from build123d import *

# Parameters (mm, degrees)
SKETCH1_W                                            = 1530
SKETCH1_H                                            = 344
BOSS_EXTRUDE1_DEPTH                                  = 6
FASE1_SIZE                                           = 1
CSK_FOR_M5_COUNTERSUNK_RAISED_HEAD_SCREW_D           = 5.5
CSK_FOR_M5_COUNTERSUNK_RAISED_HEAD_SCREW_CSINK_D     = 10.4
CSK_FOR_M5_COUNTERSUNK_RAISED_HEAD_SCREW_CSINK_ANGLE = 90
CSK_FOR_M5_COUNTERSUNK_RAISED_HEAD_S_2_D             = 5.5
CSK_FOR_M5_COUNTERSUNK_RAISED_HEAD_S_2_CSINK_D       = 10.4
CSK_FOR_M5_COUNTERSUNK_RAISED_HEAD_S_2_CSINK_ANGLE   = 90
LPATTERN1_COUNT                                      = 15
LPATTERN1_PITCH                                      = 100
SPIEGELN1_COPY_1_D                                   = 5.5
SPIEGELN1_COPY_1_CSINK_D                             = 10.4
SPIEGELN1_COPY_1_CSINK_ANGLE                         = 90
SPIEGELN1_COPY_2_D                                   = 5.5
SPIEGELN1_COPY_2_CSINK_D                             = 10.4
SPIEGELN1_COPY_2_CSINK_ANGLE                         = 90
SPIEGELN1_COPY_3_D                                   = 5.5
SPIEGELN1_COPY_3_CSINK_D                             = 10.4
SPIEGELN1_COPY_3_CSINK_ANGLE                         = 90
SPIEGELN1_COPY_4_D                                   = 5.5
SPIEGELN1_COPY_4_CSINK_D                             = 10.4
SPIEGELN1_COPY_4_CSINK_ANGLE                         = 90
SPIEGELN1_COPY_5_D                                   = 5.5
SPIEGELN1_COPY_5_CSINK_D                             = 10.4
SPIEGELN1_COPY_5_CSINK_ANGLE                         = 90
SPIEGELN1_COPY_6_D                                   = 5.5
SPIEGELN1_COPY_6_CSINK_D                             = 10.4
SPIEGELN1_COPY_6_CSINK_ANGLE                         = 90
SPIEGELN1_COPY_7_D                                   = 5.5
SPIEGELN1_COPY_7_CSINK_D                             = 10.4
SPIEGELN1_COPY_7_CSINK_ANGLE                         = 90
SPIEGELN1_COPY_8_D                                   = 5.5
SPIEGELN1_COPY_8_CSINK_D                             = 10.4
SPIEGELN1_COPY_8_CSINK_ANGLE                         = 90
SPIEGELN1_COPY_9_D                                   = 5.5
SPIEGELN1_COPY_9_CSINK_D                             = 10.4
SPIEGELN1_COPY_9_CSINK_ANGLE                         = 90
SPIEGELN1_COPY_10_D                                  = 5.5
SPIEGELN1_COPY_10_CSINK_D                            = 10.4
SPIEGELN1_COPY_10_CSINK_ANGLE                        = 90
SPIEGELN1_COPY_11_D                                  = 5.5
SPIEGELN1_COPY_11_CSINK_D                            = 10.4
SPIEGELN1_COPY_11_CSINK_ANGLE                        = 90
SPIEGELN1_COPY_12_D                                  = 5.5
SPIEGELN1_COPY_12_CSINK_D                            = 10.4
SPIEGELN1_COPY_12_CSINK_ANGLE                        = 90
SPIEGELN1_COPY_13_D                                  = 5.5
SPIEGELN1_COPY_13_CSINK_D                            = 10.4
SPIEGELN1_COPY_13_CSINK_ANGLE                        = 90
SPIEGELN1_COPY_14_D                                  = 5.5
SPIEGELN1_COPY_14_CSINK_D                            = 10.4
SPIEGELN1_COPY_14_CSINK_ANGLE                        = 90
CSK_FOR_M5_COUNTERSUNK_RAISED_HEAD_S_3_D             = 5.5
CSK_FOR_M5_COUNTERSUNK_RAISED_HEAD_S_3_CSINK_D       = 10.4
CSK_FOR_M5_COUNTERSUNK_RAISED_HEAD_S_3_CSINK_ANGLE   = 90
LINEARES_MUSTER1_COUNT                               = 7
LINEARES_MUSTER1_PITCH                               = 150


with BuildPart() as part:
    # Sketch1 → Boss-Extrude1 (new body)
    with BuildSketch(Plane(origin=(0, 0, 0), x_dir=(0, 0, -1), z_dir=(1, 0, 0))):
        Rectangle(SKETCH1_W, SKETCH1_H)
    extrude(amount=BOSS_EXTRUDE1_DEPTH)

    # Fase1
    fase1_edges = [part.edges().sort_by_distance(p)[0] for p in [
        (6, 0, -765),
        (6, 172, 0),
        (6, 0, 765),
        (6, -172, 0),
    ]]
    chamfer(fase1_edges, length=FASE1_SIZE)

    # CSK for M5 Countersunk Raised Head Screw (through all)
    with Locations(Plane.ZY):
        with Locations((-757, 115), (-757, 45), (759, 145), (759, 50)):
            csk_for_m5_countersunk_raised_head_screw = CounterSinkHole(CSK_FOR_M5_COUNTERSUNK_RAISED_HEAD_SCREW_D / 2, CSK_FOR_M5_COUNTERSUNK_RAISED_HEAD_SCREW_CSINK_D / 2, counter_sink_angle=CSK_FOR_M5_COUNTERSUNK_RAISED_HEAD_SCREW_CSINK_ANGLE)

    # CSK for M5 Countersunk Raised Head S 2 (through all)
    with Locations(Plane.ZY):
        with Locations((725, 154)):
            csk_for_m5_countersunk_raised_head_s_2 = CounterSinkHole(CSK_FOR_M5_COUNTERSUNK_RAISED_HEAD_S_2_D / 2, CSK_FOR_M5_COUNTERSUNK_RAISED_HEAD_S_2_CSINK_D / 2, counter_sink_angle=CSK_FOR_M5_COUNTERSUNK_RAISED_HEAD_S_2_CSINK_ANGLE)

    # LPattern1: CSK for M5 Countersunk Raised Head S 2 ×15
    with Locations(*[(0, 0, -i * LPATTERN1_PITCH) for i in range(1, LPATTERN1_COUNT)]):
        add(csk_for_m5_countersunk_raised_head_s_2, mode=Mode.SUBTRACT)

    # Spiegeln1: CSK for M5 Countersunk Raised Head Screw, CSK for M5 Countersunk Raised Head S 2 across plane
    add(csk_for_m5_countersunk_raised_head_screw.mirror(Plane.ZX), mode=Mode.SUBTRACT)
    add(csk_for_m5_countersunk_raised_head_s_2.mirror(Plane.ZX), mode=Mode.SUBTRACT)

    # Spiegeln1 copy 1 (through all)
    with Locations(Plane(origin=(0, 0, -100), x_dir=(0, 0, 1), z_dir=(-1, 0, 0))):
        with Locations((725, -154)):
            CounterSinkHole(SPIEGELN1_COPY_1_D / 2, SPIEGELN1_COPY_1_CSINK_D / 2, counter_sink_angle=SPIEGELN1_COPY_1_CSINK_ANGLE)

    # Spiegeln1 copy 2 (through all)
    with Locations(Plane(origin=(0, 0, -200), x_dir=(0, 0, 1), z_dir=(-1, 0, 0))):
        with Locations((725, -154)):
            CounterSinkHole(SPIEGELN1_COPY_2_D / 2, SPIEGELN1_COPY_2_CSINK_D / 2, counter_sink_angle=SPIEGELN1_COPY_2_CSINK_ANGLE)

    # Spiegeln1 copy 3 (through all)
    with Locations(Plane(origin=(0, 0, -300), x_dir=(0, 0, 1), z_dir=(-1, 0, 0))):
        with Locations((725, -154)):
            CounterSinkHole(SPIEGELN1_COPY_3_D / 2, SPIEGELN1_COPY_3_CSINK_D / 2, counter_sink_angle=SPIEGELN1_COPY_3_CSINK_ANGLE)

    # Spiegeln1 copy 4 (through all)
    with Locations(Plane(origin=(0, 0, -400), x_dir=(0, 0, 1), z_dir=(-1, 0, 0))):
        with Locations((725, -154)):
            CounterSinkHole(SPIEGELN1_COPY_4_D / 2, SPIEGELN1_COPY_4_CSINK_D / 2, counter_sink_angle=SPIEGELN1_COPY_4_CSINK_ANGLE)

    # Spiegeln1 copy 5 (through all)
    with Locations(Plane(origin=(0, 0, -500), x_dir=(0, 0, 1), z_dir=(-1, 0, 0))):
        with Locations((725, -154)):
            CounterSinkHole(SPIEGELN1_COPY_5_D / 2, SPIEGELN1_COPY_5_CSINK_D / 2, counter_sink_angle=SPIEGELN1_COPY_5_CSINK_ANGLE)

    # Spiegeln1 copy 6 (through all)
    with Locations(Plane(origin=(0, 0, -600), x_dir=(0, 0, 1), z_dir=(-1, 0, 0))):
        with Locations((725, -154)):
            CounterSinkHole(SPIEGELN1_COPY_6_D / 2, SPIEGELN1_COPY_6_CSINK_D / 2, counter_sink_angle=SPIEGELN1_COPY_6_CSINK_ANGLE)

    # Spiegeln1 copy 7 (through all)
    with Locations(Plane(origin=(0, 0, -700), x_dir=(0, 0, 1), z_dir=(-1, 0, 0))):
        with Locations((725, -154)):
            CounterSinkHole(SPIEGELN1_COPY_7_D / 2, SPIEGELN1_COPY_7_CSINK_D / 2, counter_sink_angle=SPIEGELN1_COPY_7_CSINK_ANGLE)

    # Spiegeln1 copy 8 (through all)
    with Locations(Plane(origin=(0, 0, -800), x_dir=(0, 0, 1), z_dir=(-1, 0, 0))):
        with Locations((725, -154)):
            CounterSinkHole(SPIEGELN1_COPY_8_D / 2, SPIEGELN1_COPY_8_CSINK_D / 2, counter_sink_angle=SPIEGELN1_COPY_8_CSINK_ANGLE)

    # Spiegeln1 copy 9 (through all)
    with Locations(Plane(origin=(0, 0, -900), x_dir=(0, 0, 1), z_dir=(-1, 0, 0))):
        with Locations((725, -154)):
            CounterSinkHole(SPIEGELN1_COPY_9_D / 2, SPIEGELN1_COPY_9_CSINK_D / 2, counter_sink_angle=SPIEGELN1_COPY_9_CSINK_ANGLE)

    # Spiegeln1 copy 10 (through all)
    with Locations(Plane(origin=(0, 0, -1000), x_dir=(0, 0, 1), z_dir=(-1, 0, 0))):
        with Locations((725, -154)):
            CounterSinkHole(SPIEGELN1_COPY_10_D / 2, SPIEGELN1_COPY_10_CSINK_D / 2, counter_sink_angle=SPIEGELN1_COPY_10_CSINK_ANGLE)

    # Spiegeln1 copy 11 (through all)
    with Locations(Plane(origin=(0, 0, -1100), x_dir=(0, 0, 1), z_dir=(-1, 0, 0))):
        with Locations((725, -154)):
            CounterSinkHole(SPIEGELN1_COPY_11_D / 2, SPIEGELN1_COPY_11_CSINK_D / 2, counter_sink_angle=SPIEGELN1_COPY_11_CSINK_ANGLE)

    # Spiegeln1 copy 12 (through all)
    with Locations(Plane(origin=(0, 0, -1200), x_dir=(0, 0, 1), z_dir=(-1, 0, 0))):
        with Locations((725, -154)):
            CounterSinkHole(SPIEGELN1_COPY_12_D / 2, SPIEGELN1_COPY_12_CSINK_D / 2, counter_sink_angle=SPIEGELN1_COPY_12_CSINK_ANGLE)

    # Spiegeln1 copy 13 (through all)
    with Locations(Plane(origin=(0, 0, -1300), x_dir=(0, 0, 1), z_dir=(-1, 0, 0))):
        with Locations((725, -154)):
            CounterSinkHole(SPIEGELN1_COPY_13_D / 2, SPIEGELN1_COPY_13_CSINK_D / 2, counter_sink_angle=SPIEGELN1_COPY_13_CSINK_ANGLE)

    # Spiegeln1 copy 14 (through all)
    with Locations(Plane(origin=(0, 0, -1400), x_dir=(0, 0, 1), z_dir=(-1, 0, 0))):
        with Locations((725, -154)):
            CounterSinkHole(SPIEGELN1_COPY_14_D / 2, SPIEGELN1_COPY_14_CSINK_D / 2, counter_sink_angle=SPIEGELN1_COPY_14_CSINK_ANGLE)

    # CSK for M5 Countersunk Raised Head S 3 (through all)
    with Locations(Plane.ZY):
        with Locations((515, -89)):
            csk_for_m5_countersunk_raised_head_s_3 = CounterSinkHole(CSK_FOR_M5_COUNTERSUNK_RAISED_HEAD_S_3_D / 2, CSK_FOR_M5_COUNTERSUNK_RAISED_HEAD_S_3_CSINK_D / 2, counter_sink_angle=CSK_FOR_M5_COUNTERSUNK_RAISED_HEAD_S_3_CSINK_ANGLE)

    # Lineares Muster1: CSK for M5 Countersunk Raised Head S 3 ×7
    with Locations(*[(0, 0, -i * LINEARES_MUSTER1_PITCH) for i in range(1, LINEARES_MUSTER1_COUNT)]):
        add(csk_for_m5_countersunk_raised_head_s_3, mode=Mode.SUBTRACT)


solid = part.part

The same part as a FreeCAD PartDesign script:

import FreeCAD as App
import Part
import Sketcher
Q = App.Units.Quantity


def edges_at(feature, points):
    """Names of the edges that pass closest to the given points."""
    edges = feature.Shape.Edges
    near = lambda p: min(range(len(edges)), key=lambda i: edges[i].distToShape(Part.Vertex(*p))[0])
    return sorted({f"Edge{near(p) + 1}" for p in points})


def add_polygon(sketch, points):
    """Adds a closed chain of lines whose ends are joined by coincident constraints."""
    first, n = sketch.GeometryCount, len(points)
    for a, b in zip(points, points[1:] + points[:1]):
        sketch.addGeometry(Part.LineSegment(App.Vector(*a, 0), App.Vector(*b, 0)), False)
    for i in range(n):
        sketch.addConstraint(Sketcher.Constraint("Coincident", first + i, 2, first + (i + 1) % n, 1))

doc = App.newDocument("Part")
body = doc.addObject("PartDesign::Body", "Body")

# Sketch on YZ plane
sketch1 = body.newObject("Sketcher::SketchObject", "Sketch")
sketch1.AttachmentSupport = (doc.getObject("YZ_Plane"), [""])
sketch1.MapMode = "FlatFace"
add_polygon(sketch1, [(172, 765), (-172, 765), (-172, -765), (172, -765)])  # lines 0-3
sketch1.addConstraint([
    Sketcher.Constraint("Horizontal", 0),
    Sketcher.Constraint("Vertical", 1),
    Sketcher.Constraint("Horizontal", 2),
    Sketcher.Constraint("Vertical", 3),
    Sketcher.Constraint("Symmetric", 0, 2, 2, 2, -1, 1),
    Sketcher.Constraint("DistanceX", 0, 2, 0, 1, Q("344 mm")),
    Sketcher.Constraint("DistanceY", 1, 2, 1, 1, Q("1530 mm")),
])
pad1 = body.newObject("PartDesign::Pad", "Pad")
pad1.Profile = sketch1
pad1.Length = 6
doc.recompute()

chamfer = body.newObject("PartDesign::Chamfer", "Chamfer")
chamfer.Base = (pad1, edges_at(pad1, [
    (6, 0, -765),
    (6, 172, 0),
    (6, 0, 765),
    (6, -172, 0),
]))
chamfer.Size = 1

# Sketch on YZ plane
sketch2 = body.newObject("Sketcher::SketchObject", "Sketch001")
sketch2.AttachmentSupport = (doc.getObject("YZ_Plane"), [""])
sketch2.MapMode = "FlatFace"
sketch2.addGeometry([
    Part.Circle(App.Vector(115, -757, 0), App.Vector(0, 0, 1), 2.8),
    Part.Circle(App.Vector(45, -757, 0), App.Vector(0, 0, 1), 2.8),
    Part.Circle(App.Vector(145, 759, 0), App.Vector(0, 0, 1), 2.8),
    Part.Circle(App.Vector(50, 759, 0), App.Vector(0, 0, 1), 2.8),
], False)
sketch2.addConstraint([
    Sketcher.Constraint("Equal", 0, 1),
    Sketcher.Constraint("Equal", 1, 2),
    Sketcher.Constraint("Equal", 2, 3),
    Sketcher.Constraint("Horizontal", 0, 3, 1, 3),
    Sketcher.Constraint("Horizontal", 2, 3, 3, 3),
    Sketcher.Constraint("Diameter", 0, Q("5.5 mm")),
    Sketcher.Constraint("DistanceX", -1, 1, 0, 3, Q("115 mm")),
    Sketcher.Constraint("DistanceY", 0, 3, -1, 1, Q("757 mm")),
    Sketcher.Constraint("DistanceX", -1, 1, 1, 3, Q("45 mm")),
    Sketcher.Constraint("DistanceX", -1, 1, 2, 3, Q("145 mm")),
    Sketcher.Constraint("DistanceY", -1, 1, 2, 3, Q("759 mm")),
    Sketcher.Constraint("DistanceX", -1, 1, 3, 3, Q("50 mm")),
])
doc.recompute()
hole = body.newObject("PartDesign::Hole", "Hole")
hole.Profile = sketch2
hole.ThreadType = "None"
hole.Diameter = 5.5
hole.DepthType = "ThroughAll"
hole.HoleCutType = "Countersink"
hole.HoleCutDiameter = 10.4
hole.HoleCutCountersinkAngle = 90
hole.Reversed = True

# Sketch on YZ plane
sketch3 = body.newObject("Sketcher::SketchObject", "Sketch002")
sketch3.AttachmentSupport = (doc.getObject("YZ_Plane"), [""])
sketch3.MapMode = "FlatFace"
sketch3.addGeometry(Part.Circle(App.Vector(154, 725, 0), App.Vector(0, 0, 1), 2.8), False)
sketch3.addConstraint([
    Sketcher.Constraint("Diameter", 0, Q("5.5 mm")),
    Sketcher.Constraint("DistanceX", -1, 1, 0, 3, Q("154 mm")),
    Sketcher.Constraint("DistanceY", -1, 1, 0, 3, Q("725 mm")),
])
doc.recompute()
hole2 = body.newObject("PartDesign::Hole", "Hole001")
hole2.Profile = sketch3
hole2.ThreadType = "None"
hole2.Diameter = 5.5
hole2.DepthType = "ThroughAll"
hole2.HoleCutType = "Countersink"
hole2.HoleCutDiameter = 10.4
hole2.HoleCutCountersinkAngle = 90
hole2.Reversed = True
doc.recompute()

linearpattern = body.newObject("PartDesign::LinearPattern", "LinearPattern")
linearpattern.Originals = [hole2]
linearpattern.Direction = (doc.getObject("Z_Axis"), [""])
linearpattern.Mode = "offset"
linearpattern.Offset = 100
linearpattern.Occurrences = 15
linearpattern.Reversed = True
body.Tip = linearpattern
doc.recompute()

mirrored = body.newObject("PartDesign::Mirrored", "Mirrored")
mirrored.Originals = [hole, hole2]
mirrored.MirrorPlane = (doc.getObject("XZ_Plane"), [""])
body.Tip = mirrored

# Sketch on YZ plane
sketch4 = body.newObject("Sketcher::SketchObject", "Sketch003")
sketch4.AttachmentSupport = (doc.getObject("YZ_Plane"), [""])
sketch4.MapMode = "FlatFace"
sketch4.addGeometry(Part.Circle(App.Vector(-154, 625, 0), App.Vector(0, 0, 1), 2.8), False)
sketch4.addConstraint([
    Sketcher.Constraint("Diameter", 0, Q("5.5 mm")),
    Sketcher.Constraint("DistanceX", 0, 3, -1, 1, Q("154 mm")),
    Sketcher.Constraint("DistanceY", -1, 1, 0, 3, Q("625 mm")),
])
doc.recompute()
hole3 = body.newObject("PartDesign::Hole", "Hole002")
hole3.Profile = sketch4
hole3.ThreadType = "None"
hole3.Diameter = 5.5
hole3.DepthType = "ThroughAll"
hole3.HoleCutType = "Countersink"
hole3.HoleCutDiameter = 10.4
hole3.HoleCutCountersinkAngle = 90
hole3.Reversed = True

# Sketch on YZ plane
sketch5 = body.newObject("Sketcher::SketchObject", "Sketch004")
sketch5.AttachmentSupport = (doc.getObject("YZ_Plane"), [""])
sketch5.MapMode = "FlatFace"
sketch5.addGeometry(Part.Circle(App.Vector(-154, 525, 0), App.Vector(0, 0, 1), 2.8), False)
sketch5.addConstraint([
    Sketcher.Constraint("Diameter", 0, Q("5.5 mm")),
    Sketcher.Constraint("DistanceX", 0, 3, -1, 1, Q("154 mm")),
    Sketcher.Constraint("DistanceY", -1, 1, 0, 3, Q("525 mm")),
])
doc.recompute()
hole4 = body.newObject("PartDesign::Hole", "Hole003")
hole4.Profile = sketch5
hole4.ThreadType = "None"
hole4.Diameter = 5.5
hole4.DepthType = "ThroughAll"
hole4.HoleCutType = "Countersink"
hole4.HoleCutDiameter = 10.4
hole4.HoleCutCountersinkAngle = 90
hole4.Reversed = True

# Sketch on YZ plane
sketch6 = body.newObject("Sketcher::SketchObject", "Sketch005")
sketch6.AttachmentSupport = (doc.getObject("YZ_Plane"), [""])
sketch6.MapMode = "FlatFace"
sketch6.addGeometry(Part.Circle(App.Vector(-154, 425, 0), App.Vector(0, 0, 1), 2.8), False)
sketch6.addConstraint([
    Sketcher.Constraint("Diameter", 0, Q("5.5 mm")),
    Sketcher.Constraint("DistanceX", 0, 3, -1, 1, Q("154 mm")),
    Sketcher.Constraint("DistanceY", -1, 1, 0, 3, Q("425 mm")),
])
doc.recompute()
hole5 = body.newObject("PartDesign::Hole", "Hole004")
hole5.Profile = sketch6
hole5.ThreadType = "None"
hole5.Diameter = 5.5
hole5.DepthType = "ThroughAll"
hole5.HoleCutType = "Countersink"
hole5.HoleCutDiameter = 10.4
hole5.HoleCutCountersinkAngle = 90
hole5.Reversed = True

# Sketch on YZ plane
sketch7 = body.newObject("Sketcher::SketchObject", "Sketch006")
sketch7.AttachmentSupport = (doc.getObject("YZ_Plane"), [""])
sketch7.MapMode = "FlatFace"
sketch7.addGeometry(Part.Circle(App.Vector(-154, 325, 0), App.Vector(0, 0, 1), 2.8), False)
sketch7.addConstraint([
    Sketcher.Constraint("Diameter", 0, Q("5.5 mm")),
    Sketcher.Constraint("DistanceX", 0, 3, -1, 1, Q("154 mm")),
    Sketcher.Constraint("DistanceY", -1, 1, 0, 3, Q("325 mm")),
])
doc.recompute()
hole6 = body.newObject("PartDesign::Hole", "Hole005")
hole6.Profile = sketch7
hole6.ThreadType = "None"
hole6.Diameter = 5.5
hole6.DepthType = "ThroughAll"
hole6.HoleCutType = "Countersink"
hole6.HoleCutDiameter = 10.4
hole6.HoleCutCountersinkAngle = 90
hole6.Reversed = True

# Sketch on YZ plane
sketch8 = body.newObject("Sketcher::SketchObject", "Sketch007")
sketch8.AttachmentSupport = (doc.getObject("YZ_Plane"), [""])
sketch8.MapMode = "FlatFace"
sketch8.addGeometry(Part.Circle(App.Vector(-154, 225, 0), App.Vector(0, 0, 1), 2.8), False)
sketch8.addConstraint([
    Sketcher.Constraint("Diameter", 0, Q("5.5 mm")),
    Sketcher.Constraint("DistanceX", 0, 3, -1, 1, Q("154 mm")),
    Sketcher.Constraint("DistanceY", -1, 1, 0, 3, Q("225 mm")),
])
doc.recompute()
hole7 = body.newObject("PartDesign::Hole", "Hole006")
hole7.Profile = sketch8
hole7.ThreadType = "None"
hole7.Diameter = 5.5
hole7.DepthType = "ThroughAll"
hole7.HoleCutType = "Countersink"
hole7.HoleCutDiameter = 10.4
hole7.HoleCutCountersinkAngle = 90
hole7.Reversed = True

# Sketch on YZ plane
sketch9 = body.newObject("Sketcher::SketchObject", "Sketch008")
sketch9.AttachmentSupport = (doc.getObject("YZ_Plane"), [""])
sketch9.MapMode = "FlatFace"
sketch9.addGeometry(Part.Circle(App.Vector(-154, 125, 0), App.Vector(0, 0, 1), 2.8), False)
sketch9.addConstraint([
    Sketcher.Constraint("Diameter", 0, Q("5.5 mm")),
    Sketcher.Constraint("DistanceX", 0, 3, -1, 1, Q("154 mm")),
    Sketcher.Constraint("DistanceY", -1, 1, 0, 3, Q("125 mm")),
])
doc.recompute()
hole8 = body.newObject("PartDesign::Hole", "Hole007")
hole8.Profile = sketch9
hole8.ThreadType = "None"
hole8.Diameter = 5.5
hole8.DepthType = "ThroughAll"
hole8.HoleCutType = "Countersink"
hole8.HoleCutDiameter = 10.4
hole8.HoleCutCountersinkAngle = 90
hole8.Reversed = True

# Sketch on YZ plane
sketch10 = body.newObject("Sketcher::SketchObject", "Sketch009")
sketch10.AttachmentSupport = (doc.getObject("YZ_Plane"), [""])
sketch10.MapMode = "FlatFace"
sketch10.addGeometry(Part.Circle(App.Vector(-154, 25, 0), App.Vector(0, 0, 1), 2.8), False)
sketch10.addConstraint([
    Sketcher.Constraint("Diameter", 0, Q("5.5 mm")),
    Sketcher.Constraint("DistanceX", 0, 3, -1, 1, Q("154 mm")),
    Sketcher.Constraint("DistanceY", -1, 1, 0, 3, Q("25 mm")),
])
doc.recompute()
hole9 = body.newObject("PartDesign::Hole", "Hole008")
hole9.Profile = sketch10
hole9.ThreadType = "None"
hole9.Diameter = 5.5
hole9.DepthType = "ThroughAll"
hole9.HoleCutType = "Countersink"
hole9.HoleCutDiameter = 10.4
hole9.HoleCutCountersinkAngle = 90
hole9.Reversed = True

# Sketch on YZ plane
sketch11 = body.newObject("Sketcher::SketchObject", "Sketch010")
sketch11.AttachmentSupport = (doc.getObject("YZ_Plane"), [""])
sketch11.MapMode = "FlatFace"
sketch11.addGeometry(Part.Circle(App.Vector(-154, -75, 0), App.Vector(0, 0, 1), 2.8), False)
sketch11.addConstraint([
    Sketcher.Constraint("Diameter", 0, Q("5.5 mm")),
    Sketcher.Constraint("DistanceX", 0, 3, -1, 1, Q("154 mm")),
    Sketcher.Constraint("DistanceY", 0, 3, -1, 1, Q("75 mm")),
])
doc.recompute()
hole10 = body.newObject("PartDesign::Hole", "Hole009")
hole10.Profile = sketch11
hole10.ThreadType = "None"
hole10.Diameter = 5.5
hole10.DepthType = "ThroughAll"
hole10.HoleCutType = "Countersink"
hole10.HoleCutDiameter = 10.4
hole10.HoleCutCountersinkAngle = 90
hole10.Reversed = True

# Sketch on YZ plane
sketch12 = body.newObject("Sketcher::SketchObject", "Sketch011")
sketch12.AttachmentSupport = (doc.getObject("YZ_Plane"), [""])
sketch12.MapMode = "FlatFace"
sketch12.addGeometry(Part.Circle(App.Vector(-154, -175, 0), App.Vector(0, 0, 1), 2.8), False)
sketch12.addConstraint([
    Sketcher.Constraint("Diameter", 0, Q("5.5 mm")),
    Sketcher.Constraint("DistanceX", 0, 3, -1, 1, Q("154 mm")),
    Sketcher.Constraint("DistanceY", 0, 3, -1, 1, Q("175 mm")),
])
doc.recompute()
hole11 = body.newObject("PartDesign::Hole", "Hole010")
hole11.Profile = sketch12
hole11.ThreadType = "None"
hole11.Diameter = 5.5
hole11.DepthType = "ThroughAll"
hole11.HoleCutType = "Countersink"
hole11.HoleCutDiameter = 10.4
hole11.HoleCutCountersinkAngle = 90
hole11.Reversed = True

# Sketch on YZ plane
sketch13 = body.newObject("Sketcher::SketchObject", "Sketch012")
sketch13.AttachmentSupport = (doc.getObject("YZ_Plane"), [""])
sketch13.MapMode = "FlatFace"
sketch13.addGeometry(Part.Circle(App.Vector(-154, -275, 0), App.Vector(0, 0, 1), 2.8), False)
sketch13.addConstraint([
    Sketcher.Constraint("Diameter", 0, Q("5.5 mm")),
    Sketcher.Constraint("DistanceX", 0, 3, -1, 1, Q("154 mm")),
    Sketcher.Constraint("DistanceY", 0, 3, -1, 1, Q("275 mm")),
])
doc.recompute()
hole12 = body.newObject("PartDesign::Hole", "Hole011")
hole12.Profile = sketch13
hole12.ThreadType = "None"
hole12.Diameter = 5.5
hole12.DepthType = "ThroughAll"
hole12.HoleCutType = "Countersink"
hole12.HoleCutDiameter = 10.4
hole12.HoleCutCountersinkAngle = 90
hole12.Reversed = True

# Sketch on YZ plane
sketch14 = body.newObject("Sketcher::SketchObject", "Sketch013")
sketch14.AttachmentSupport = (doc.getObject("YZ_Plane"), [""])
sketch14.MapMode = "FlatFace"
sketch14.addGeometry(Part.Circle(App.Vector(-154, -375, 0), App.Vector(0, 0, 1), 2.8), False)
sketch14.addConstraint([
    Sketcher.Constraint("Diameter", 0, Q("5.5 mm")),
    Sketcher.Constraint("DistanceX", 0, 3, -1, 1, Q("154 mm")),
    Sketcher.Constraint("DistanceY", 0, 3, -1, 1, Q("375 mm")),
])
doc.recompute()
hole13 = body.newObject("PartDesign::Hole", "Hole012")
hole13.Profile = sketch14
hole13.ThreadType = "None"
hole13.Diameter = 5.5
hole13.DepthType = "ThroughAll"
hole13.HoleCutType = "Countersink"
hole13.HoleCutDiameter = 10.4
hole13.HoleCutCountersinkAngle = 90
hole13.Reversed = True

# Sketch on YZ plane
sketch15 = body.newObject("Sketcher::SketchObject", "Sketch014")
sketch15.AttachmentSupport = (doc.getObject("YZ_Plane"), [""])
sketch15.MapMode = "FlatFace"
sketch15.addGeometry(Part.Circle(App.Vector(-154, -475, 0), App.Vector(0, 0, 1), 2.8), False)
sketch15.addConstraint([
    Sketcher.Constraint("Diameter", 0, Q("5.5 mm")),
    Sketcher.Constraint("DistanceX", 0, 3, -1, 1, Q("154 mm")),
    Sketcher.Constraint("DistanceY", 0, 3, -1, 1, Q("475 mm")),
])
doc.recompute()
hole14 = body.newObject("PartDesign::Hole", "Hole013")
hole14.Profile = sketch15
hole14.ThreadType = "None"
hole14.Diameter = 5.5
hole14.DepthType = "ThroughAll"
hole14.HoleCutType = "Countersink"
hole14.HoleCutDiameter = 10.4
hole14.HoleCutCountersinkAngle = 90
hole14.Reversed = True

# Sketch on YZ plane
sketch16 = body.newObject("Sketcher::SketchObject", "Sketch015")
sketch16.AttachmentSupport = (doc.getObject("YZ_Plane"), [""])
sketch16.MapMode = "FlatFace"
sketch16.addGeometry(Part.Circle(App.Vector(-154, -575, 0), App.Vector(0, 0, 1), 2.8), False)
sketch16.addConstraint([
    Sketcher.Constraint("Diameter", 0, Q("5.5 mm")),
    Sketcher.Constraint("DistanceX", 0, 3, -1, 1, Q("154 mm")),
    Sketcher.Constraint("DistanceY", 0, 3, -1, 1, Q("575 mm")),
])
doc.recompute()
hole15 = body.newObject("PartDesign::Hole", "Hole014")
hole15.Profile = sketch16
hole15.ThreadType = "None"
hole15.Diameter = 5.5
hole15.DepthType = "ThroughAll"
hole15.HoleCutType = "Countersink"
hole15.HoleCutDiameter = 10.4
hole15.HoleCutCountersinkAngle = 90
hole15.Reversed = True

# Sketch on YZ plane
sketch17 = body.newObject("Sketcher::SketchObject", "Sketch016")
sketch17.AttachmentSupport = (doc.getObject("YZ_Plane"), [""])
sketch17.MapMode = "FlatFace"
sketch17.addGeometry(Part.Circle(App.Vector(-154, -675, 0), App.Vector(0, 0, 1), 2.8), False)
sketch17.addConstraint([
    Sketcher.Constraint("Diameter", 0, Q("5.5 mm")),
    Sketcher.Constraint("DistanceX", 0, 3, -1, 1, Q("154 mm")),
    Sketcher.Constraint("DistanceY", 0, 3, -1, 1, Q("675 mm")),
])
doc.recompute()
hole16 = body.newObject("PartDesign::Hole", "Hole015")
hole16.Profile = sketch17
hole16.ThreadType = "None"
hole16.Diameter = 5.5
hole16.DepthType = "ThroughAll"
hole16.HoleCutType = "Countersink"
hole16.HoleCutDiameter = 10.4
hole16.HoleCutCountersinkAngle = 90
hole16.Reversed = True

# Sketch on YZ plane
sketch18 = body.newObject("Sketcher::SketchObject", "Sketch017")
sketch18.AttachmentSupport = (doc.getObject("YZ_Plane"), [""])
sketch18.MapMode = "FlatFace"
sketch18.addGeometry(Part.Circle(App.Vector(-89, 515, 0), App.Vector(0, 0, 1), 2.8), False)
sketch18.addConstraint([
    Sketcher.Constraint("Diameter", 0, Q("5.5 mm")),
    Sketcher.Constraint("DistanceX", 0, 3, -1, 1, Q("89 mm")),
    Sketcher.Constraint("DistanceY", -1, 1, 0, 3, Q("515 mm")),
])
doc.recompute()
hole17 = body.newObject("PartDesign::Hole", "Hole016")
hole17.Profile = sketch18
hole17.ThreadType = "None"
hole17.Diameter = 5.5
hole17.DepthType = "ThroughAll"
hole17.HoleCutType = "Countersink"
hole17.HoleCutDiameter = 10.4
hole17.HoleCutCountersinkAngle = 90
hole17.Reversed = True
doc.recompute()

linearpattern2 = body.newObject("PartDesign::LinearPattern", "LinearPattern001")
linearpattern2.Originals = [hole17]
linearpattern2.Direction = (doc.getObject("Z_Axis"), [""])
linearpattern2.Mode = "offset"
linearpattern2.Offset = 150
linearpattern2.Occurrences = 7
linearpattern2.Reversed = True
body.Tip = linearpattern2

doc.recompute()
